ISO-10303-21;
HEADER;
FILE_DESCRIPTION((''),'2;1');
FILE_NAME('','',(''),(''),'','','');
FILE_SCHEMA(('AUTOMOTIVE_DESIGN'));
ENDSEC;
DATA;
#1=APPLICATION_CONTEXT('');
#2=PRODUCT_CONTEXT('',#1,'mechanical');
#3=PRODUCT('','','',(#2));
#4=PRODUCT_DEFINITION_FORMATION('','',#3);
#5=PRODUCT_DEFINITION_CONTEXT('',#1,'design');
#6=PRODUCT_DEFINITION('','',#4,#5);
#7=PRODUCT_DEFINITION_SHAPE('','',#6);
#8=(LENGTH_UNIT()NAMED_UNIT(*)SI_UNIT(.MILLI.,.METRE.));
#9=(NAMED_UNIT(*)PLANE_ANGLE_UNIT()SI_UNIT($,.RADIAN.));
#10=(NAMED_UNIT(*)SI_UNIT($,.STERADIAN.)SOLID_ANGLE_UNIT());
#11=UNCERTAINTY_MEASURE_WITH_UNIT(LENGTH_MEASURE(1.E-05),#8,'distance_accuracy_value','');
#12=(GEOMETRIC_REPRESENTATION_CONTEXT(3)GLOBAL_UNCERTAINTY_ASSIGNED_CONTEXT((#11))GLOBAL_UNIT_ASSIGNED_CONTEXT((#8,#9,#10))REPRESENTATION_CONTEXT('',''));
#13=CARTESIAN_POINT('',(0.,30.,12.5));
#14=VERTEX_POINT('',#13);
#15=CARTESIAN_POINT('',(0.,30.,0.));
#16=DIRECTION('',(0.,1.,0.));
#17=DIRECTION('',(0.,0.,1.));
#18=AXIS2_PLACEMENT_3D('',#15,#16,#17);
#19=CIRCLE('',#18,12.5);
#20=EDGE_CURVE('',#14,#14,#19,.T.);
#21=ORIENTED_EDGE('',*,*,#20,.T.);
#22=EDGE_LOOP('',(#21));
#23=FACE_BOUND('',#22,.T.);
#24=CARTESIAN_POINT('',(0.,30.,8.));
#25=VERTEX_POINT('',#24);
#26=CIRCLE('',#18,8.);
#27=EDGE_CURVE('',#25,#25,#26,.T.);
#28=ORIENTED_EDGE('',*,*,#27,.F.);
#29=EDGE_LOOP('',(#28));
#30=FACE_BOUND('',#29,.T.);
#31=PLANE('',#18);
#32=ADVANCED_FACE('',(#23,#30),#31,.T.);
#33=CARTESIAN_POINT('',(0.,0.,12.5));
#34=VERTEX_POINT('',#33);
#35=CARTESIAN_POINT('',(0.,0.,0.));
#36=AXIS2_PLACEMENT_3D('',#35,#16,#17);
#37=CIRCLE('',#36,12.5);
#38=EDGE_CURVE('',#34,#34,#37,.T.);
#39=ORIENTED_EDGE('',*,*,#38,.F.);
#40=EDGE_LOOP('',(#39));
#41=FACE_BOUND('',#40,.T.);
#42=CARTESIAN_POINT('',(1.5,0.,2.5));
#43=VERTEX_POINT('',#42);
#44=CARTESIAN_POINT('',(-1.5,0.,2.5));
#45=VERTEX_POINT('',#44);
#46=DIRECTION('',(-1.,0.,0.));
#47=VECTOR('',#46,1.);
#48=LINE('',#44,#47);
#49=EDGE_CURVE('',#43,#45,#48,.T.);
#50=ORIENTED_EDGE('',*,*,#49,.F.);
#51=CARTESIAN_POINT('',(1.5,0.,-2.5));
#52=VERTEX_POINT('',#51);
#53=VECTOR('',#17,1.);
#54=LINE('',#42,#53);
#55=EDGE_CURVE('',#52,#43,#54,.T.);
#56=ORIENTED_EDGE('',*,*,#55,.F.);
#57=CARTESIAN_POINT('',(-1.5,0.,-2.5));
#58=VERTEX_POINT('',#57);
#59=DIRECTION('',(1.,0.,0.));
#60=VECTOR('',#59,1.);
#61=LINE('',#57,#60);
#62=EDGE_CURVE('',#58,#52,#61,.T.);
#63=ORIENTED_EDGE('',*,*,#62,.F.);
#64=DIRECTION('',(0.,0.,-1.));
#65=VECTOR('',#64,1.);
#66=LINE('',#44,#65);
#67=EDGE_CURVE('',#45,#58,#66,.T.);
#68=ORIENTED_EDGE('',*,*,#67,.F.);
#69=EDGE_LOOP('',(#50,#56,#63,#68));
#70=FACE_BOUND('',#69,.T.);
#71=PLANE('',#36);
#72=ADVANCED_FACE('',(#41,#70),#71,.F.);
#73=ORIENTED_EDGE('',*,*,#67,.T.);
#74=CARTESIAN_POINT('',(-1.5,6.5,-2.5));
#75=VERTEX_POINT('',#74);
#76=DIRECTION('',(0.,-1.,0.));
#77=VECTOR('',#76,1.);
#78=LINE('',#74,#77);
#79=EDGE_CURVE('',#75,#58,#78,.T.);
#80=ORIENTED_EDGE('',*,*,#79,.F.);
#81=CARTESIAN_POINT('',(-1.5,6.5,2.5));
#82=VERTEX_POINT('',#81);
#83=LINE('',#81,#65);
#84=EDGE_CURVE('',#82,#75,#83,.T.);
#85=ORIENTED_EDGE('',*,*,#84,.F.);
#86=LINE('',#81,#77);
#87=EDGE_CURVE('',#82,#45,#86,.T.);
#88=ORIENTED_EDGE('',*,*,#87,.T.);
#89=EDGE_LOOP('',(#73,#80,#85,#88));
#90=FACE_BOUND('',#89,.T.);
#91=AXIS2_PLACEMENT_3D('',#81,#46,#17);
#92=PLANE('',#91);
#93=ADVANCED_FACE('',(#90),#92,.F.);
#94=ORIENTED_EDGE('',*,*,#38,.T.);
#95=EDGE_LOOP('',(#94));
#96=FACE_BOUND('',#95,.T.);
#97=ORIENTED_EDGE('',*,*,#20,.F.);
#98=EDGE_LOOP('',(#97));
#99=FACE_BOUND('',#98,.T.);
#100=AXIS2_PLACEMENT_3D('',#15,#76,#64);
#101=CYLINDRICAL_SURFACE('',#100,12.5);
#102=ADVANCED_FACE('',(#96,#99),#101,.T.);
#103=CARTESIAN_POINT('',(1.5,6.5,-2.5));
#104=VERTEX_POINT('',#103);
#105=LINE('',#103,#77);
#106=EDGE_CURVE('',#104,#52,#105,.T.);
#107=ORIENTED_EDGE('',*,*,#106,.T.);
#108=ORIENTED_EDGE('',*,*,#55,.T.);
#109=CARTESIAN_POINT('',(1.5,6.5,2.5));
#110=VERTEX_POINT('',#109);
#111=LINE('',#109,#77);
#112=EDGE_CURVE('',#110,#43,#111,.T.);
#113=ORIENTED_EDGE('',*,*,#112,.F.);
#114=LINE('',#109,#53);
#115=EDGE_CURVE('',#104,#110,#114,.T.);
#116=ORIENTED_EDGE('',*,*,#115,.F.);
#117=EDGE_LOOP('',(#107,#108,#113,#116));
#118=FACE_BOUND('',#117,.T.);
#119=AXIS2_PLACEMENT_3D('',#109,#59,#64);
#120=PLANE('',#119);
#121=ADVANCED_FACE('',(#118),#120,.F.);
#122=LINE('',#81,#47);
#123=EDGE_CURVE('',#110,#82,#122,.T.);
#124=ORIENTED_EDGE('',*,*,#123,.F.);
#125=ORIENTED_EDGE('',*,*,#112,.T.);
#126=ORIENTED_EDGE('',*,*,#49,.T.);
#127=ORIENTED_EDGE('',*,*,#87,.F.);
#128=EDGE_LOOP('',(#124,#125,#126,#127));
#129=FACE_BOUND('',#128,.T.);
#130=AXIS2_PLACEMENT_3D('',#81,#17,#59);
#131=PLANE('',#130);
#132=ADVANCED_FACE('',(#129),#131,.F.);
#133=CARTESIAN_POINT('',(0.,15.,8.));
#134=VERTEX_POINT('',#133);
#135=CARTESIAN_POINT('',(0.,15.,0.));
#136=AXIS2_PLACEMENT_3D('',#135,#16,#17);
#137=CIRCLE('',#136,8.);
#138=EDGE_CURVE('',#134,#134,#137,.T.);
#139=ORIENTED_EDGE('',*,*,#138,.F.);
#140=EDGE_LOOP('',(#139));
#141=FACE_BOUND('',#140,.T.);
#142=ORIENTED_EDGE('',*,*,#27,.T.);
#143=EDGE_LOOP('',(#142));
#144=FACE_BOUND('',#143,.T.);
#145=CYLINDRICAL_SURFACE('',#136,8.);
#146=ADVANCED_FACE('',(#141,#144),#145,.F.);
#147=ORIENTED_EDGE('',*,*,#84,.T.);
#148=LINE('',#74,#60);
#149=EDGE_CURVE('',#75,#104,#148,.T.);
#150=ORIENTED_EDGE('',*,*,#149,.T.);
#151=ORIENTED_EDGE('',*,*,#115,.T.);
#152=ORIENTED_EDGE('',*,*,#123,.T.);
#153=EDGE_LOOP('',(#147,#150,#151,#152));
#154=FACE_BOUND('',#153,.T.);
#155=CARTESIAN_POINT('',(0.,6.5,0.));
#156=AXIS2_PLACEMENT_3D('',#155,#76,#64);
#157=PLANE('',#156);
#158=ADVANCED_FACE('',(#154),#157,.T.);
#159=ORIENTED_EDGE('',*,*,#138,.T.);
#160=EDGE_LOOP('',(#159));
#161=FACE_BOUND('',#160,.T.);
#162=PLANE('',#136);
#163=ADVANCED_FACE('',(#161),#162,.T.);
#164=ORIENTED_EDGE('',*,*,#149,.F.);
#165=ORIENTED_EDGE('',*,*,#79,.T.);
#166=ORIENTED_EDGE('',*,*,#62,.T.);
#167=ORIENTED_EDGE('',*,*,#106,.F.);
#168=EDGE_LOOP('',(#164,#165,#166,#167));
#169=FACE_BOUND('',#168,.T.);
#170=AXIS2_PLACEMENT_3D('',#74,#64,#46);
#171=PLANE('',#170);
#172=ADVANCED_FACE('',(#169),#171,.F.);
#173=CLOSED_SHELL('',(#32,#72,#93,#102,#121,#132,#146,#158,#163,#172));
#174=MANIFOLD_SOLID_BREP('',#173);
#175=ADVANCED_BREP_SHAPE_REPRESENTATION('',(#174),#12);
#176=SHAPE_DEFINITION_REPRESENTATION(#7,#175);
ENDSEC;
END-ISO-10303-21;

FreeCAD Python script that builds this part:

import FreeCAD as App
import Part
import Sketcher
Q = App.Units.Quantity

doc = App.newDocument("Part")
body = doc.addObject("PartDesign::Body", "Body")

# Sketch on XZ plane
sketch1 = doc.addObject("Sketcher::SketchObject", "Sketch")
body.addObject(sketch1)
sketch1.AttachmentSupport = (doc.XZ_Plane, [""])
sketch1.MapMode = "FlatFace"
sketch1.addGeometry(Part.Circle(App.Vector(0, 0, 0), App.Vector(0, 0, 1), 12), False)
sketch1.addConstraint(Sketcher.Constraint("Coincident", 0, 3, -1, 1))
sketch1.addConstraint(Sketcher.Constraint("Diameter", 0, Q("25 mm")))
pad1 = doc.addObject("PartDesign::Pad", "Pad")
body.addObject(pad1)
pad1.Profile = sketch1
pad1.Length = 30
pad1.Reversed = True

# Sketch on XZ plane
sketch2 = doc.addObject("Sketcher::SketchObject", "Sketch001")
body.addObject(sketch2)
sketch2.AttachmentSupport = (doc.XZ_Plane, [""])
sketch2.MapMode = "FlatFace"
sketch2.AttachmentOffset = App.Placement(App.Vector(0, 0, -30), App.Rotation())
sketch2.addGeometry(Part.Circle(App.Vector(0, 0, 0), App.Vector(0, 0, 1), 8), False)
sketch2.addConstraint(Sketcher.Constraint("Coincident", 0, 3, -1, 1))
sketch2.addConstraint(Sketcher.Constraint("Diameter", 0, Q("16 mm")))
pocket1 = doc.addObject("PartDesign::Pocket", "Pocket")
body.addObject(pocket1)
pocket1.Profile = sketch2
pocket1.Length = 15
pocket1.Reversed = True

# Sketch on XZ plane
sketch3 = doc.addObject("Sketcher::SketchObject", "Sketch002")
body.addObject(sketch3)
sketch3.AttachmentSupport = (doc.XZ_Plane, [""])
sketch3.MapMode = "FlatFace"
sketch3.addGeometry(Part.LineSegment(App.Vector(-1.5, 2.5, 0), App.Vector(-1.5, -2.5, 0)), False)
sketch3.addGeometry(Part.LineSegment(App.Vector(-1.5, -2.5, 0), App.Vector(1.5, -2.5, 0)), False)
sketch3.addGeometry(Part.LineSegment(App.Vector(1.5, -2.5, 0), App.Vector(1.5, 2.5, 0)), False)
sketch3.addGeometry(Part.LineSegment(App.Vector(1.5, 2.5, 0), App.Vector(-1.5, 2.5, 0)), False)
sketch3.addConstraint(Sketcher.Constraint("Coincident", 0, 2, 1, 1))
sketch3.addConstraint(Sketcher.Constraint("Coincident", 1, 2, 2, 1))
sketch3.addConstraint(Sketcher.Constraint("Coincident", 2, 2, 3, 1))
sketch3.addConstraint(Sketcher.Constraint("Coincident", 3, 2, 0, 1))
sketch3.addConstraint(Sketcher.Constraint("Vertical", 0))
sketch3.addConstraint(Sketcher.Constraint("Horizontal", 1))
sketch3.addConstraint(Sketcher.Constraint("Vertical", 2))
sketch3.addConstraint(Sketcher.Constraint("Horizontal", 3))
sketch3.addConstraint(Sketcher.Constraint("Symmetric", 0, 2, 2, 2, -1, 1))
sketch3.addConstraint(Sketcher.Constraint("DistanceX", 1, 1, 1, 2, Q("3 mm")))
sketch3.addConstraint(Sketcher.Constraint("DistanceY", 0, 2, 0, 1, Q("5 mm")))
pocket2 = doc.addObject("PartDesign::Pocket", "Pocket001")
body.addObject(pocket2)
pocket2.Profile = sketch3
pocket2.Length = 6.5

doc.recompute()
